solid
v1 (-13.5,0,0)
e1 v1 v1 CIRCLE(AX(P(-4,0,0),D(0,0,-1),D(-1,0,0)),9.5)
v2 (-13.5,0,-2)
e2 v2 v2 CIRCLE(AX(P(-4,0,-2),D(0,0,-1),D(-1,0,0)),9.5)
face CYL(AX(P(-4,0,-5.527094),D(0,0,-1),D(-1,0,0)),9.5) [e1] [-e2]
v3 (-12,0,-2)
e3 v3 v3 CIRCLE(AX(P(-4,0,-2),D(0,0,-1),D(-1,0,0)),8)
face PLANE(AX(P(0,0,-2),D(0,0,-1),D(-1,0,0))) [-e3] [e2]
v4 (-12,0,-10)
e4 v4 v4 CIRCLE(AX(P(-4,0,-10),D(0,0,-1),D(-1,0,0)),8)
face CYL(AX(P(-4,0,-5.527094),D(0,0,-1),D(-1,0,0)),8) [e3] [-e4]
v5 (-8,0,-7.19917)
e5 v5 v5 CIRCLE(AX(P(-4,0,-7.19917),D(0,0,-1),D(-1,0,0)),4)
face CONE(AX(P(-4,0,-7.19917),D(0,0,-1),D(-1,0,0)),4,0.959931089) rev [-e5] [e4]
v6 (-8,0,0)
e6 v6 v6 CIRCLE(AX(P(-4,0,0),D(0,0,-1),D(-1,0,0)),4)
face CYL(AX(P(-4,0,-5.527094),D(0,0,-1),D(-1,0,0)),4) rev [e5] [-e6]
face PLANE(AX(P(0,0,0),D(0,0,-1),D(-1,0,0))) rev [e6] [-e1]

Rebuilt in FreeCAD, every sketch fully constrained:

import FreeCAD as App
import Part
import Sketcher
from FreeCAD import Vector
Q = App.Units.Quantity


def add_polygon(sketch, points):
    """Adds a closed chain of lines whose ends are joined by coincident constraints."""
    first, n = sketch.GeometryCount, len(points)
    for a, b in zip(points, points[1:] + points[:1]):
        sketch.addGeometry(Part.LineSegment(App.Vector(*a, 0), App.Vector(*b, 0)), False)
    for i in range(n):
        sketch.addConstraint(Sketcher.Constraint("Coincident", first + i, 2, first + (i + 1) % n, 1))

doc = App.newDocument("Part")
params = doc.addObject("Spreadsheet::Sheet", "Params")
for row, (alias, value) in enumerate([
    ("sketch1_height", "2 mm"),
    ("sketch1_height2", "8 mm"),
    ("sketch1_width", "5.5 mm"),
    ("sketch1_width2", "1.5 mm"),
    ("revolution_angle", "360 deg"),
], start=1):
    params.set(f"A{row}", alias)
    params.set(f"B{row}", "=" + value)
    params.setAlias(f"B{row}", alias)

body = doc.addObject("PartDesign::Body", "Body")

sketch1 = body.newObject("Sketcher::SketchObject", "Sketch")
sketch1.AttachmentSupport = (doc.getObject("XZ_Plane"), [""])
sketch1.MapMode = "FlatFace"
add_polygon(sketch1, [(0, -7.2), (0, 0), (5.5, 0), (5.5, -2), (4, -2), (4, -10)])
sketch1.addGeometry(Part.LineSegment(Vector(-4, -10, 0), Vector(-4, 0, 0)), True)
sketch1.addConstraint([
    Sketcher.Constraint("Vertical", 0),
    Sketcher.Constraint("Horizontal", 1),
    Sketcher.Constraint("Vertical", 2),
    Sketcher.Constraint("Horizontal", 3),
    Sketcher.Constraint("Vertical", 4),
    Sketcher.Constraint("Vertical", 6),
    Sketcher.Constraint("Coincident", 0, 2, -1, 1),
    Sketcher.Constraint("Symmetric", 4, 2, 6, 1, -2),
    Sketcher.Constraint("PointOnObject", 6, 2, -1),
    Sketcher.Constraint("DistanceY", 2, 2, 2, 1, Q("2 mm")),
    Sketcher.Constraint("DistanceY", 4, 2, 4, 1, Q("8 mm")),
    Sketcher.Constraint("Angle", 5, Q("145 deg")),
    Sketcher.Constraint("DistanceX", 1, 1, 1, 2, Q("5.5 mm")),
    Sketcher.Constraint("DistanceX", 3, 2, 3, 1, Q("1.5 mm")),
])
sketch1.setExpression("Constraints[15]", "Params.sketch1_height")
sketch1.setExpression("Constraints[16]", "Params.sketch1_height2")
sketch1.setExpression("Constraints[18]", "Params.sketch1_width")
sketch1.setExpression("Constraints[19]", "Params.sketch1_width2")
revolution = body.newObject("PartDesign::Revolution", "Revolution")
revolution.Profile = sketch1
revolution.ReferenceAxis = (sketch1, ["Axis0"])
revolution.setExpression("Angle", "Params.revolution_angle")

doc.recompute()
